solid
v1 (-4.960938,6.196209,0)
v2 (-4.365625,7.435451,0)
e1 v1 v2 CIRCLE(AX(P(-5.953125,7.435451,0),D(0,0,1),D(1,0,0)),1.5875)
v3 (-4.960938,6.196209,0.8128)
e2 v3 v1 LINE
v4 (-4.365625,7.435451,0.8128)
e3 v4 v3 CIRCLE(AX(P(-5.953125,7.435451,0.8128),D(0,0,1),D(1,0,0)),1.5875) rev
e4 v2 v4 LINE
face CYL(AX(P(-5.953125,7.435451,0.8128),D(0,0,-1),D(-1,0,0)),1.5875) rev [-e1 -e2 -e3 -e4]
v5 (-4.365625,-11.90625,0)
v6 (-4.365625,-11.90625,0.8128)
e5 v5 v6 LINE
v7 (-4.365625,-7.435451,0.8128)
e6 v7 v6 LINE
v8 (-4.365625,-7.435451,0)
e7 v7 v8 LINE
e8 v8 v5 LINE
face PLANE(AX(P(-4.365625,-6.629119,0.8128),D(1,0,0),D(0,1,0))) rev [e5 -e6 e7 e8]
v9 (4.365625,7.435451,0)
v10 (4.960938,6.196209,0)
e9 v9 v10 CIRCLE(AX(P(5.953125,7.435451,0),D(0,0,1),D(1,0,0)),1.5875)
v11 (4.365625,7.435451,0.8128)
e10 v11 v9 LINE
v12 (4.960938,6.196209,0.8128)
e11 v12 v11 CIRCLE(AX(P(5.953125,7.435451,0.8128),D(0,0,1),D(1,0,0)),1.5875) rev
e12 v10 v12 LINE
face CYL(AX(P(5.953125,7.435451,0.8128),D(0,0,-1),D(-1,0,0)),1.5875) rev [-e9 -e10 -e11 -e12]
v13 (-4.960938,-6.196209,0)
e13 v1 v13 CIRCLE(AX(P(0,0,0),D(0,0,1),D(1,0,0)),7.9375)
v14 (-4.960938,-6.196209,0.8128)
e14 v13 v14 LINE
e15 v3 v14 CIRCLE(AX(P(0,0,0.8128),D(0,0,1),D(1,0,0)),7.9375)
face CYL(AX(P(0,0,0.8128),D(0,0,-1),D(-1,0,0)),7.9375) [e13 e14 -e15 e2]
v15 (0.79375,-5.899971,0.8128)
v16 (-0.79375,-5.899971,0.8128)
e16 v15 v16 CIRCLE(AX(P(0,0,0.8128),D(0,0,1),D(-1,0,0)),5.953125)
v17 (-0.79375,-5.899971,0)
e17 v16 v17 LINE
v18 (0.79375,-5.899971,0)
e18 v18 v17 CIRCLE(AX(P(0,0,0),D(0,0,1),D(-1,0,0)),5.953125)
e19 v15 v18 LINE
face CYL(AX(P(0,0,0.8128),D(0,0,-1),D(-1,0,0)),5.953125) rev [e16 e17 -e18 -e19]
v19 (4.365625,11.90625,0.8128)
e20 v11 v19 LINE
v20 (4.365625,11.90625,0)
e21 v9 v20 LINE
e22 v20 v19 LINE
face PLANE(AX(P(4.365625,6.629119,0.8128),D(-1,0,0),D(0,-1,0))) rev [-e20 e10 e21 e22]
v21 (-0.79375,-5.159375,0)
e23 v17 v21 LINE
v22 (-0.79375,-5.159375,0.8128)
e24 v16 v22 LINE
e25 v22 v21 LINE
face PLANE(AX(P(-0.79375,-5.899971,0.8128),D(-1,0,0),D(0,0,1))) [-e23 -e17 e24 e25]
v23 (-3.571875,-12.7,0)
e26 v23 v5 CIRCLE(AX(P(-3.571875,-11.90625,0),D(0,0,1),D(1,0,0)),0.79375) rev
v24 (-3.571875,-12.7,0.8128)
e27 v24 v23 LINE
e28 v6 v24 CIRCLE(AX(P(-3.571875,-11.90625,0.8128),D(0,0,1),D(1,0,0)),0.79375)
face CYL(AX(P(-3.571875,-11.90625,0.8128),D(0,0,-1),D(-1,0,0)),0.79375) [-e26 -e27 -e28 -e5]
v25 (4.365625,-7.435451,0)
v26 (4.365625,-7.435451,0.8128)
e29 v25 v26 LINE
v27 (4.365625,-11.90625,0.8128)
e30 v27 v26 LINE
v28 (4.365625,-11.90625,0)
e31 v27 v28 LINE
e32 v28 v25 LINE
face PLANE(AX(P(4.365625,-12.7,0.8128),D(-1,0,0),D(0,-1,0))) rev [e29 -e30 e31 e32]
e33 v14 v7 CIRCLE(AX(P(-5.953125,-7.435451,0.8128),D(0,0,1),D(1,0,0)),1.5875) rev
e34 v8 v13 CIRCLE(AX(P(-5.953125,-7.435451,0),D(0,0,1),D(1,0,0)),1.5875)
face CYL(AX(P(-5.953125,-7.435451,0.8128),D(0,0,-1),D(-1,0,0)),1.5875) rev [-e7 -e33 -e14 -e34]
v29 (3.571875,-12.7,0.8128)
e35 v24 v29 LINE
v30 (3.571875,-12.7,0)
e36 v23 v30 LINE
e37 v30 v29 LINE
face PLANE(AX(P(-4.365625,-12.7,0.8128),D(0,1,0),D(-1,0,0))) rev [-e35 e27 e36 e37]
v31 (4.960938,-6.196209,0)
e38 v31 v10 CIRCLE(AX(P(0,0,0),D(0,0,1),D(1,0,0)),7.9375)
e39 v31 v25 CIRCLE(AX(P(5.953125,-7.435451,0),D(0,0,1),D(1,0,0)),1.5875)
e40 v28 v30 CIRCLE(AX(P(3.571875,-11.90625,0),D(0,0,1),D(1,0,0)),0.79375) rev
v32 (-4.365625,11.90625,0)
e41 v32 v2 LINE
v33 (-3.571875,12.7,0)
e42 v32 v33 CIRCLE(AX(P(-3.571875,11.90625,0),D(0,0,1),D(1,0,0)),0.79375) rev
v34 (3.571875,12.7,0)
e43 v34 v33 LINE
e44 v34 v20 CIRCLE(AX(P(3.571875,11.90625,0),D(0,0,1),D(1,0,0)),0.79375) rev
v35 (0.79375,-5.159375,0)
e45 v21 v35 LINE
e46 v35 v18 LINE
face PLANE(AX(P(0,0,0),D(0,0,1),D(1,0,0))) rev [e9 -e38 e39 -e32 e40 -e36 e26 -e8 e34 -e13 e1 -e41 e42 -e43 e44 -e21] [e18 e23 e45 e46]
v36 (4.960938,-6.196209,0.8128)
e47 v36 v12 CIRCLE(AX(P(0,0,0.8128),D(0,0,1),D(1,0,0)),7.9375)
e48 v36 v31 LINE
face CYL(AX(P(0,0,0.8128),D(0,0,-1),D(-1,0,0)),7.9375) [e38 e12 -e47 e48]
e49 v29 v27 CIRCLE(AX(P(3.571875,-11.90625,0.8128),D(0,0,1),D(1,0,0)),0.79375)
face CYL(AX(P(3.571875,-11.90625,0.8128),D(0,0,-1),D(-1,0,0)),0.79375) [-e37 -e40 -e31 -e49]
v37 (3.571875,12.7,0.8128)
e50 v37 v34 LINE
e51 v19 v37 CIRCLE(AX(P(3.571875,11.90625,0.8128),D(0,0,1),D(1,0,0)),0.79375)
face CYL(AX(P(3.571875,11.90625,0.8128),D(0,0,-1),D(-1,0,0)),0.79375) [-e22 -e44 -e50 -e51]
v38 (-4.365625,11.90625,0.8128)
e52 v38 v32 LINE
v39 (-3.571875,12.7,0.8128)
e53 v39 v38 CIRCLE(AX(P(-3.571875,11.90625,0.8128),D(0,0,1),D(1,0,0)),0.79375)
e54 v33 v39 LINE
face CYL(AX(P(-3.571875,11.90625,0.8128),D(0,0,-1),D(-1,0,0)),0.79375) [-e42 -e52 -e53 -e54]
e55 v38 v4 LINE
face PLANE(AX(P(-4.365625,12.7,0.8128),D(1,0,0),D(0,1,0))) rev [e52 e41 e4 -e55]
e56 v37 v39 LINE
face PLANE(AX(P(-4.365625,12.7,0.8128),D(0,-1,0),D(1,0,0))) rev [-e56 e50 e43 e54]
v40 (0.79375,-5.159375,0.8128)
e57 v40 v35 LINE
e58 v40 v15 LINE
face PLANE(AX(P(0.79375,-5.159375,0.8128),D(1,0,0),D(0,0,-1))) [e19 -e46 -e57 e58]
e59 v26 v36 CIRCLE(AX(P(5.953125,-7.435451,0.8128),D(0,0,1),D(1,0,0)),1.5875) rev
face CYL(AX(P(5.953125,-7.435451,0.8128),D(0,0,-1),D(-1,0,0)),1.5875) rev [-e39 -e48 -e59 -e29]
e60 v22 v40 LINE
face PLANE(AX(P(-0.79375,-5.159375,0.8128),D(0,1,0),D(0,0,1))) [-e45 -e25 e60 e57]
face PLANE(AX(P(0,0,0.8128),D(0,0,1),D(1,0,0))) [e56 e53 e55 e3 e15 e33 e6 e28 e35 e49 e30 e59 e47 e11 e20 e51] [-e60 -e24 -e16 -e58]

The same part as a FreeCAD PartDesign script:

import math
import FreeCAD as App
import Part
import Sketcher
Q = App.Units.Quantity


def edges_at(feature, points):
    """Names of the edges that pass closest to the given points."""
    edges = feature.Shape.Edges
    near = lambda p: min(range(len(edges)), key=lambda i: edges[i].distToShape(Part.Vertex(*p))[0])
    return sorted({f"Edge{near(p) + 1}" for p in points})

doc = App.newDocument("Part")
body = doc.addObject("PartDesign::Body", "Body")

sketch1 = body.newObject("Sketcher::SketchObject", "Sketch")
sketch1.AttachmentSupport = (doc.getObject("XY_Plane"), [""])
sketch1.MapMode = "FlatFace"
sketch1.addGeometry([
    Part.LineSegment(App.Vector(4.4, 12.7, 0), App.Vector(-4.4, 12.7, 0)),
    Part.LineSegment(App.Vector(-4.4, 12.7, 0), App.Vector(-4.4, 6.6, 0)),
    Part.ArcOfCircle(Part.Circle(App.Vector(0, 0, 0), App.Vector(0, 0, 1), 7.9), math.radians(123), math.radians(237)),
    Part.LineSegment(App.Vector(-4.4, -6.6, 0), App.Vector(-4.4, -12.7, 0)),
    Part.LineSegment(App.Vector(-4.4, -12.7, 0), App.Vector(4.4, -12.7, 0)),
    Part.LineSegment(App.Vector(4.4, -12.7, 0), App.Vector(4.4, -6.6, 0)),
    Part.ArcOfCircle(Part.Circle(App.Vector(0, 0, 0), App.Vector(0, 0, 1), 7.9), math.radians(-57), math.radians(57)),
    Part.LineSegment(App.Vector(4.4, 6.6, 0), App.Vector(4.4, 12.7, 0)),
    Part.ArcOfCircle(Part.Circle(App.Vector(0, 0, 0), App.Vector(0, 0, 1), 6), math.radians(-82), math.radians(262)),
    Part.LineSegment(App.Vector(0.8, -5.9, 0), App.Vector(0.8, -5.2, 0)),
    Part.LineSegment(App.Vector(0.8, -5.2, 0), App.Vector(-0.8, -5.2, 0)),
    Part.LineSegment(App.Vector(-0.8, -5.2, 0), App.Vector(-0.8, -5.9, 0)),
], False)
sketch1.addConstraint([
    Sketcher.Constraint("Coincident", 0, 2, 1, 1),
    Sketcher.Constraint("Coincident", 1, 2, 2, 1),
    Sketcher.Constraint("Coincident", 2, 2, 3, 1),
    Sketcher.Constraint("Coincident", 3, 2, 4, 1),
    Sketcher.Constraint("Coincident", 4, 2, 5, 1),
    Sketcher.Constraint("Coincident", 5, 2, 6, 1),
    Sketcher.Constraint("Coincident", 6, 2, 7, 1),
    Sketcher.Constraint("Coincident", 7, 2, 0, 1),
    Sketcher.Constraint("Coincident", 8, 1, 9, 1),
    Sketcher.Constraint("Coincident", 9, 2, 10, 1),
    Sketcher.Constraint("Coincident", 10, 2, 11, 1),
    Sketcher.Constraint("Coincident", 11, 2, 8, 2),
    Sketcher.Constraint("Horizontal", 0),
    Sketcher.Constraint("Vertical", 1),
    Sketcher.Constraint("Vertical", 3),
    Sketcher.Constraint("Horizontal", 4),
    Sketcher.Constraint("Vertical", 5),
    Sketcher.Constraint("Vertical", 7),
    Sketcher.Constraint("Vertical", 9),
    Sketcher.Constraint("Horizontal", 10),
    Sketcher.Constraint("Vertical", 11),
    Sketcher.Constraint("Coincident", 2, 3, -1, 1),
    Sketcher.Constraint("Coincident", 6, 3, -1, 1),
    Sketcher.Constraint("Coincident", 8, 3, -1, 1),
    Sketcher.Constraint("Equal", 2, 6),
    Sketcher.Constraint("Symmetric", 0, 2, 4, 2, -1, 1),
    Sketcher.Constraint("Horizontal", 2, 2, 5, 2),
    Sketcher.Constraint("Horizontal", 1, 2, 6, 2),
    Sketcher.Constraint("Horizontal", 8, 1, 11, 2),
    Sketcher.Constraint("Radius", 2, Q("0.3125 in")),
    Sketcher.Constraint("Radius", 8, Q("0.234375 in")),
    Sketcher.Constraint("DistanceY", -1, 1, 0, 2, Q("0.5 in")),
    Sketcher.Constraint("DistanceX", 0, 2, 0, 1, Q("0.34375 in")),
    Sketcher.Constraint("DistanceX", 10, 2, 10, 1, Q("0.0625 in")),
    Sketcher.Constraint("DistanceY", 9, 2, -1, 1, Q("0.203125 in")),
])
pad1 = body.newObject("PartDesign::Pad", "Pad")
pad1.Profile = sketch1
pad1.Length = Q("0.032 in")
doc.recompute()

fillet = body.newObject("PartDesign::Fillet", "Fillet")
fillet.Base = (pad1, edges_at(pad1, [
    (-4.366, 12.7, 0.406),
    (4.366, 12.7, 0.406),
    (4.366, -12.7, 0.406),
    (-4.366, -12.7, 0.406),
]))
fillet.Radius = Q("0.03125 in")
doc.recompute()

fillet2 = body.newObject("PartDesign::Fillet", "Fillet001")
fillet2.Base = (fillet, edges_at(fillet, [
    (4.366, 6.629, 0.406),
    (4.366, -6.629, 0.406),
    (-4.366, -6.629, 0.406),
    (-4.366, 6.629, 0.406),
]))
fillet2.Radius = Q("0.0625 in")

doc.recompute()
